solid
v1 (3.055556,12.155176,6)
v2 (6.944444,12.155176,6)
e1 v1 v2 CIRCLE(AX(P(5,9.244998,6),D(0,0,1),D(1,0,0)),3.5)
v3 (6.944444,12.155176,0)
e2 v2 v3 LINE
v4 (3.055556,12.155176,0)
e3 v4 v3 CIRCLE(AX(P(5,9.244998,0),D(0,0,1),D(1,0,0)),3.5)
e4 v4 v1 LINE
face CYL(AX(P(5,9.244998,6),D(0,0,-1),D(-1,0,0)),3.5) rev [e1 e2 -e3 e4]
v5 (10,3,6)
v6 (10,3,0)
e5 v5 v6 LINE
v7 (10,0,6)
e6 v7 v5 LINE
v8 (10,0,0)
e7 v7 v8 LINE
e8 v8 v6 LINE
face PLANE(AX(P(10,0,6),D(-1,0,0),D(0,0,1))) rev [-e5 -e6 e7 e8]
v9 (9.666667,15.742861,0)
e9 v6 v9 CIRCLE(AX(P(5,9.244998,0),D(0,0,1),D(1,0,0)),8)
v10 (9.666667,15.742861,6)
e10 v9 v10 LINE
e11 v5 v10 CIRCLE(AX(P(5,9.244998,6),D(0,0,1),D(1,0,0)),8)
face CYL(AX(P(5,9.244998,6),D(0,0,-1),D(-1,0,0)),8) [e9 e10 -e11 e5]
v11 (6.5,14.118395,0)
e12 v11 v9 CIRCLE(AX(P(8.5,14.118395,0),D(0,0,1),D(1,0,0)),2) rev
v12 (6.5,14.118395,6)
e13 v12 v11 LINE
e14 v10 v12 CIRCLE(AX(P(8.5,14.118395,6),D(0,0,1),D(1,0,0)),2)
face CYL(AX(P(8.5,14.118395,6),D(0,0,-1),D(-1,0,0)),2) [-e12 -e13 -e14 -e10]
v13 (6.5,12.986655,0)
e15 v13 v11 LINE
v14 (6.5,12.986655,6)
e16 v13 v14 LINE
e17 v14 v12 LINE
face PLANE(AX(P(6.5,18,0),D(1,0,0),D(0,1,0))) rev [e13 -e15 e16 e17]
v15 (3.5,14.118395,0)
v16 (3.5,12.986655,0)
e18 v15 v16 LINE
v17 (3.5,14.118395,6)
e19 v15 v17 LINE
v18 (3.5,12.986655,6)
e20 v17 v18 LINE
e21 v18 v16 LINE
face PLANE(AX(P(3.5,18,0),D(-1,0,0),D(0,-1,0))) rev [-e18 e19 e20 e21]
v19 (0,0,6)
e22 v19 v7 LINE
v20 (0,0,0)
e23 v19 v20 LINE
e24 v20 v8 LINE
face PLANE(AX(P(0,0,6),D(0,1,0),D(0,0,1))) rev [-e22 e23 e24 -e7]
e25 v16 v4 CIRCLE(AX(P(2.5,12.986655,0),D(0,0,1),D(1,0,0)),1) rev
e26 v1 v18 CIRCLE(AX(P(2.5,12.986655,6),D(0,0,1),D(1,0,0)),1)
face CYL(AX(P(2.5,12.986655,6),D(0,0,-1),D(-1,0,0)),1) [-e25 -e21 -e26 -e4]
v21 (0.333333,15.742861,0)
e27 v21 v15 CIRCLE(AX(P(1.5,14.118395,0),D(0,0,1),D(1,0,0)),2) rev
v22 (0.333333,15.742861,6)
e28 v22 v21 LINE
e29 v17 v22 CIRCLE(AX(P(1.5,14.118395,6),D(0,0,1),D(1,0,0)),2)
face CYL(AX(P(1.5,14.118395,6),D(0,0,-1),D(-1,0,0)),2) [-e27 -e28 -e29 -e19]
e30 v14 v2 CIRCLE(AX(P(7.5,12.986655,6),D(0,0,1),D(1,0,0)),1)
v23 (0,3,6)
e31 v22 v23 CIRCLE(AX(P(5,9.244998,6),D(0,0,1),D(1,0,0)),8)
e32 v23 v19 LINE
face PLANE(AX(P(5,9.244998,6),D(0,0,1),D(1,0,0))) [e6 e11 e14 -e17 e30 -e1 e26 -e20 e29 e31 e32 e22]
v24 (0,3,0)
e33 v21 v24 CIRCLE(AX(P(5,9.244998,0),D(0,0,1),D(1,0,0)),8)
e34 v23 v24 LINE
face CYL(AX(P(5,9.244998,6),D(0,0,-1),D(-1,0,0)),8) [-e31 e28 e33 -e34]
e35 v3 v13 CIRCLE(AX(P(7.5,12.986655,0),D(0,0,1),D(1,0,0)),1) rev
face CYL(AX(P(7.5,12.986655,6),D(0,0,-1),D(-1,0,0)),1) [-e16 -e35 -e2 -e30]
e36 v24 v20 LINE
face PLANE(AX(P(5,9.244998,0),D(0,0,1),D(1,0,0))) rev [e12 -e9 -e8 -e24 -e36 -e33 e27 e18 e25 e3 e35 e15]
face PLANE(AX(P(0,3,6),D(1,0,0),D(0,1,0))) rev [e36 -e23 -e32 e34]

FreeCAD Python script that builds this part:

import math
import FreeCAD as App
import Part
import Sketcher
Q = App.Units.Quantity


def edges_at(feature, points):
    """Names of the edges that pass closest to the given points."""
    edges = feature.Shape.Edges
    near = lambda p: min(range(len(edges)), key=lambda i: edges[i].distToShape(Part.Vertex(*p))[0])
    return sorted({f"Edge{near(p) + 1}" for p in points})


def add_polygon(sketch, points):
    """Adds a closed chain of lines whose ends are joined by coincident constraints."""
    first, n = sketch.GeometryCount, len(points)
    for a, b in zip(points, points[1:] + points[:1]):
        sketch.addGeometry(Part.LineSegment(App.Vector(*a, 0), App.Vector(*b, 0)), False)
    for i in range(n):
        sketch.addConstraint(Sketcher.Constraint("Coincident", first + i, 2, first + (i + 1) % n, 1))

doc = App.newDocument("Part")
body = doc.addObject("PartDesign::Body", "Body")

# Sketch on XY plane
sketch1 = body.newObject("Sketcher::SketchObject", "Sketch")
sketch1.AttachmentSupport = (doc.getObject("XY_Plane"), [""])
sketch1.MapMode = "FlatFace"
sketch1.addGeometry(Part.LineSegment(App.Vector(0, 3, 0), App.Vector(0, 0, 0)), False)
sketch1.addGeometry(Part.LineSegment(App.Vector(0, 0, 0), App.Vector(10, 0, 0)), False)
sketch1.addGeometry(Part.LineSegment(App.Vector(10, 0, 0), App.Vector(10, 3, 0)), False)
sketch1.addGeometry(Part.ArcOfCircle(Part.Circle(App.Vector(5, 9.2, 0), App.Vector(0, 0, 1), 8), math.radians(-51), math.radians(231)), False)
sketch1.addGeometry(Part.Circle(App.Vector(5, 9.2, 0), App.Vector(0, 0, 1), 3.5), False)
sketch1.addConstraint(Sketcher.Constraint("Coincident", 0, 2, 1, 1))
sketch1.addConstraint(Sketcher.Constraint("Coincident", 1, 2, 2, 1))
sketch1.addConstraint(Sketcher.Constraint("Coincident", 2, 2, 3, 1))
sketch1.addConstraint(Sketcher.Constraint("Coincident", 3, 2, 0, 1))
sketch1.addConstraint(Sketcher.Constraint("Vertical", 0))
sketch1.addConstraint(Sketcher.Constraint("Horizontal", 1))
sketch1.addConstraint(Sketcher.Constraint("Vertical", 2))
sketch1.addConstraint(Sketcher.Constraint("Coincident", 0, 2, -1, 1))
sketch1.addConstraint(Sketcher.Constraint("Coincident", 4, 3, 3, 3))
sketch1.addConstraint(Sketcher.Constraint("Horizontal", 2, 2, 3, 2))
sketch1.addConstraint(Sketcher.Constraint("Diameter", 4, Q("7 mm")))
sketch1.addConstraint(Sketcher.Constraint("Radius", 3, Q("8 mm")))
sketch1.addConstraint(Sketcher.Constraint("DistanceX", 1, 1, 1, 2, Q("10 mm")))
sketch1.addConstraint(Sketcher.Constraint("DistanceY", 0, 2, 0, 1, Q("3 mm")))
pad1 = body.newObject("PartDesign::Pad", "Pad")
pad1.Profile = sketch1
pad1.Length = 6

# Sketch on XY plane
sketch2 = body.newObject("Sketcher::SketchObject", "Sketch001")
sketch2.AttachmentSupport = (doc.getObject("XY_Plane"), [""])
sketch2.MapMode = "FlatFace"
sketch2.AttachmentOffset = App.Placement(App.Vector(0, 0, 6), App.Rotation())
add_polygon(sketch2, [(3.5, 18), (3.5, 12), (6.5, 12), (6.5, 18)])  # lines 0-3
sketch2.addConstraint(Sketcher.Constraint("Vertical", 0))
sketch2.addConstraint(Sketcher.Constraint("Horizontal", 1))
sketch2.addConstraint(Sketcher.Constraint("Vertical", 2))
sketch2.addConstraint(Sketcher.Constraint("Horizontal", 3))
sketch2.addConstraint(Sketcher.Constraint("DistanceX", 1, 1, 1, 2, Q("3 mm")))
sketch2.addConstraint(Sketcher.Constraint("DistanceY", 0, 2, 0, 1, Q("6 mm")))
sketch2.addConstraint(Sketcher.Constraint("DistanceY", -1, 1, 0, 2, Q("12 mm")))
sketch2.addConstraint(Sketcher.Constraint("DistanceX", -1, 1, 0, 2, Q("3.5 mm")))
pocket1 = body.newObject("PartDesign::Pocket", "Pocket")
pocket1.Profile = sketch2
pocket1.Type = "ThroughAll"
doc.recompute()

fillet = body.newObject("PartDesign::Fillet", "Fillet")
fillet.Base = (pocket1, edges_at(pocket1, [(3.5, 17.103, 3), (6.5, 17.103, 3)]))
fillet.Radius = 2
doc.recompute()

fillet2 = body.newObject("PartDesign::Fillet", "Fillet001")
fillet2.Base = (fillet, edges_at(fillet, [(6.5, 12.407, 3), (3.5, 12.407, 3)]))
fillet2.Radius = 1

doc.recompute()
